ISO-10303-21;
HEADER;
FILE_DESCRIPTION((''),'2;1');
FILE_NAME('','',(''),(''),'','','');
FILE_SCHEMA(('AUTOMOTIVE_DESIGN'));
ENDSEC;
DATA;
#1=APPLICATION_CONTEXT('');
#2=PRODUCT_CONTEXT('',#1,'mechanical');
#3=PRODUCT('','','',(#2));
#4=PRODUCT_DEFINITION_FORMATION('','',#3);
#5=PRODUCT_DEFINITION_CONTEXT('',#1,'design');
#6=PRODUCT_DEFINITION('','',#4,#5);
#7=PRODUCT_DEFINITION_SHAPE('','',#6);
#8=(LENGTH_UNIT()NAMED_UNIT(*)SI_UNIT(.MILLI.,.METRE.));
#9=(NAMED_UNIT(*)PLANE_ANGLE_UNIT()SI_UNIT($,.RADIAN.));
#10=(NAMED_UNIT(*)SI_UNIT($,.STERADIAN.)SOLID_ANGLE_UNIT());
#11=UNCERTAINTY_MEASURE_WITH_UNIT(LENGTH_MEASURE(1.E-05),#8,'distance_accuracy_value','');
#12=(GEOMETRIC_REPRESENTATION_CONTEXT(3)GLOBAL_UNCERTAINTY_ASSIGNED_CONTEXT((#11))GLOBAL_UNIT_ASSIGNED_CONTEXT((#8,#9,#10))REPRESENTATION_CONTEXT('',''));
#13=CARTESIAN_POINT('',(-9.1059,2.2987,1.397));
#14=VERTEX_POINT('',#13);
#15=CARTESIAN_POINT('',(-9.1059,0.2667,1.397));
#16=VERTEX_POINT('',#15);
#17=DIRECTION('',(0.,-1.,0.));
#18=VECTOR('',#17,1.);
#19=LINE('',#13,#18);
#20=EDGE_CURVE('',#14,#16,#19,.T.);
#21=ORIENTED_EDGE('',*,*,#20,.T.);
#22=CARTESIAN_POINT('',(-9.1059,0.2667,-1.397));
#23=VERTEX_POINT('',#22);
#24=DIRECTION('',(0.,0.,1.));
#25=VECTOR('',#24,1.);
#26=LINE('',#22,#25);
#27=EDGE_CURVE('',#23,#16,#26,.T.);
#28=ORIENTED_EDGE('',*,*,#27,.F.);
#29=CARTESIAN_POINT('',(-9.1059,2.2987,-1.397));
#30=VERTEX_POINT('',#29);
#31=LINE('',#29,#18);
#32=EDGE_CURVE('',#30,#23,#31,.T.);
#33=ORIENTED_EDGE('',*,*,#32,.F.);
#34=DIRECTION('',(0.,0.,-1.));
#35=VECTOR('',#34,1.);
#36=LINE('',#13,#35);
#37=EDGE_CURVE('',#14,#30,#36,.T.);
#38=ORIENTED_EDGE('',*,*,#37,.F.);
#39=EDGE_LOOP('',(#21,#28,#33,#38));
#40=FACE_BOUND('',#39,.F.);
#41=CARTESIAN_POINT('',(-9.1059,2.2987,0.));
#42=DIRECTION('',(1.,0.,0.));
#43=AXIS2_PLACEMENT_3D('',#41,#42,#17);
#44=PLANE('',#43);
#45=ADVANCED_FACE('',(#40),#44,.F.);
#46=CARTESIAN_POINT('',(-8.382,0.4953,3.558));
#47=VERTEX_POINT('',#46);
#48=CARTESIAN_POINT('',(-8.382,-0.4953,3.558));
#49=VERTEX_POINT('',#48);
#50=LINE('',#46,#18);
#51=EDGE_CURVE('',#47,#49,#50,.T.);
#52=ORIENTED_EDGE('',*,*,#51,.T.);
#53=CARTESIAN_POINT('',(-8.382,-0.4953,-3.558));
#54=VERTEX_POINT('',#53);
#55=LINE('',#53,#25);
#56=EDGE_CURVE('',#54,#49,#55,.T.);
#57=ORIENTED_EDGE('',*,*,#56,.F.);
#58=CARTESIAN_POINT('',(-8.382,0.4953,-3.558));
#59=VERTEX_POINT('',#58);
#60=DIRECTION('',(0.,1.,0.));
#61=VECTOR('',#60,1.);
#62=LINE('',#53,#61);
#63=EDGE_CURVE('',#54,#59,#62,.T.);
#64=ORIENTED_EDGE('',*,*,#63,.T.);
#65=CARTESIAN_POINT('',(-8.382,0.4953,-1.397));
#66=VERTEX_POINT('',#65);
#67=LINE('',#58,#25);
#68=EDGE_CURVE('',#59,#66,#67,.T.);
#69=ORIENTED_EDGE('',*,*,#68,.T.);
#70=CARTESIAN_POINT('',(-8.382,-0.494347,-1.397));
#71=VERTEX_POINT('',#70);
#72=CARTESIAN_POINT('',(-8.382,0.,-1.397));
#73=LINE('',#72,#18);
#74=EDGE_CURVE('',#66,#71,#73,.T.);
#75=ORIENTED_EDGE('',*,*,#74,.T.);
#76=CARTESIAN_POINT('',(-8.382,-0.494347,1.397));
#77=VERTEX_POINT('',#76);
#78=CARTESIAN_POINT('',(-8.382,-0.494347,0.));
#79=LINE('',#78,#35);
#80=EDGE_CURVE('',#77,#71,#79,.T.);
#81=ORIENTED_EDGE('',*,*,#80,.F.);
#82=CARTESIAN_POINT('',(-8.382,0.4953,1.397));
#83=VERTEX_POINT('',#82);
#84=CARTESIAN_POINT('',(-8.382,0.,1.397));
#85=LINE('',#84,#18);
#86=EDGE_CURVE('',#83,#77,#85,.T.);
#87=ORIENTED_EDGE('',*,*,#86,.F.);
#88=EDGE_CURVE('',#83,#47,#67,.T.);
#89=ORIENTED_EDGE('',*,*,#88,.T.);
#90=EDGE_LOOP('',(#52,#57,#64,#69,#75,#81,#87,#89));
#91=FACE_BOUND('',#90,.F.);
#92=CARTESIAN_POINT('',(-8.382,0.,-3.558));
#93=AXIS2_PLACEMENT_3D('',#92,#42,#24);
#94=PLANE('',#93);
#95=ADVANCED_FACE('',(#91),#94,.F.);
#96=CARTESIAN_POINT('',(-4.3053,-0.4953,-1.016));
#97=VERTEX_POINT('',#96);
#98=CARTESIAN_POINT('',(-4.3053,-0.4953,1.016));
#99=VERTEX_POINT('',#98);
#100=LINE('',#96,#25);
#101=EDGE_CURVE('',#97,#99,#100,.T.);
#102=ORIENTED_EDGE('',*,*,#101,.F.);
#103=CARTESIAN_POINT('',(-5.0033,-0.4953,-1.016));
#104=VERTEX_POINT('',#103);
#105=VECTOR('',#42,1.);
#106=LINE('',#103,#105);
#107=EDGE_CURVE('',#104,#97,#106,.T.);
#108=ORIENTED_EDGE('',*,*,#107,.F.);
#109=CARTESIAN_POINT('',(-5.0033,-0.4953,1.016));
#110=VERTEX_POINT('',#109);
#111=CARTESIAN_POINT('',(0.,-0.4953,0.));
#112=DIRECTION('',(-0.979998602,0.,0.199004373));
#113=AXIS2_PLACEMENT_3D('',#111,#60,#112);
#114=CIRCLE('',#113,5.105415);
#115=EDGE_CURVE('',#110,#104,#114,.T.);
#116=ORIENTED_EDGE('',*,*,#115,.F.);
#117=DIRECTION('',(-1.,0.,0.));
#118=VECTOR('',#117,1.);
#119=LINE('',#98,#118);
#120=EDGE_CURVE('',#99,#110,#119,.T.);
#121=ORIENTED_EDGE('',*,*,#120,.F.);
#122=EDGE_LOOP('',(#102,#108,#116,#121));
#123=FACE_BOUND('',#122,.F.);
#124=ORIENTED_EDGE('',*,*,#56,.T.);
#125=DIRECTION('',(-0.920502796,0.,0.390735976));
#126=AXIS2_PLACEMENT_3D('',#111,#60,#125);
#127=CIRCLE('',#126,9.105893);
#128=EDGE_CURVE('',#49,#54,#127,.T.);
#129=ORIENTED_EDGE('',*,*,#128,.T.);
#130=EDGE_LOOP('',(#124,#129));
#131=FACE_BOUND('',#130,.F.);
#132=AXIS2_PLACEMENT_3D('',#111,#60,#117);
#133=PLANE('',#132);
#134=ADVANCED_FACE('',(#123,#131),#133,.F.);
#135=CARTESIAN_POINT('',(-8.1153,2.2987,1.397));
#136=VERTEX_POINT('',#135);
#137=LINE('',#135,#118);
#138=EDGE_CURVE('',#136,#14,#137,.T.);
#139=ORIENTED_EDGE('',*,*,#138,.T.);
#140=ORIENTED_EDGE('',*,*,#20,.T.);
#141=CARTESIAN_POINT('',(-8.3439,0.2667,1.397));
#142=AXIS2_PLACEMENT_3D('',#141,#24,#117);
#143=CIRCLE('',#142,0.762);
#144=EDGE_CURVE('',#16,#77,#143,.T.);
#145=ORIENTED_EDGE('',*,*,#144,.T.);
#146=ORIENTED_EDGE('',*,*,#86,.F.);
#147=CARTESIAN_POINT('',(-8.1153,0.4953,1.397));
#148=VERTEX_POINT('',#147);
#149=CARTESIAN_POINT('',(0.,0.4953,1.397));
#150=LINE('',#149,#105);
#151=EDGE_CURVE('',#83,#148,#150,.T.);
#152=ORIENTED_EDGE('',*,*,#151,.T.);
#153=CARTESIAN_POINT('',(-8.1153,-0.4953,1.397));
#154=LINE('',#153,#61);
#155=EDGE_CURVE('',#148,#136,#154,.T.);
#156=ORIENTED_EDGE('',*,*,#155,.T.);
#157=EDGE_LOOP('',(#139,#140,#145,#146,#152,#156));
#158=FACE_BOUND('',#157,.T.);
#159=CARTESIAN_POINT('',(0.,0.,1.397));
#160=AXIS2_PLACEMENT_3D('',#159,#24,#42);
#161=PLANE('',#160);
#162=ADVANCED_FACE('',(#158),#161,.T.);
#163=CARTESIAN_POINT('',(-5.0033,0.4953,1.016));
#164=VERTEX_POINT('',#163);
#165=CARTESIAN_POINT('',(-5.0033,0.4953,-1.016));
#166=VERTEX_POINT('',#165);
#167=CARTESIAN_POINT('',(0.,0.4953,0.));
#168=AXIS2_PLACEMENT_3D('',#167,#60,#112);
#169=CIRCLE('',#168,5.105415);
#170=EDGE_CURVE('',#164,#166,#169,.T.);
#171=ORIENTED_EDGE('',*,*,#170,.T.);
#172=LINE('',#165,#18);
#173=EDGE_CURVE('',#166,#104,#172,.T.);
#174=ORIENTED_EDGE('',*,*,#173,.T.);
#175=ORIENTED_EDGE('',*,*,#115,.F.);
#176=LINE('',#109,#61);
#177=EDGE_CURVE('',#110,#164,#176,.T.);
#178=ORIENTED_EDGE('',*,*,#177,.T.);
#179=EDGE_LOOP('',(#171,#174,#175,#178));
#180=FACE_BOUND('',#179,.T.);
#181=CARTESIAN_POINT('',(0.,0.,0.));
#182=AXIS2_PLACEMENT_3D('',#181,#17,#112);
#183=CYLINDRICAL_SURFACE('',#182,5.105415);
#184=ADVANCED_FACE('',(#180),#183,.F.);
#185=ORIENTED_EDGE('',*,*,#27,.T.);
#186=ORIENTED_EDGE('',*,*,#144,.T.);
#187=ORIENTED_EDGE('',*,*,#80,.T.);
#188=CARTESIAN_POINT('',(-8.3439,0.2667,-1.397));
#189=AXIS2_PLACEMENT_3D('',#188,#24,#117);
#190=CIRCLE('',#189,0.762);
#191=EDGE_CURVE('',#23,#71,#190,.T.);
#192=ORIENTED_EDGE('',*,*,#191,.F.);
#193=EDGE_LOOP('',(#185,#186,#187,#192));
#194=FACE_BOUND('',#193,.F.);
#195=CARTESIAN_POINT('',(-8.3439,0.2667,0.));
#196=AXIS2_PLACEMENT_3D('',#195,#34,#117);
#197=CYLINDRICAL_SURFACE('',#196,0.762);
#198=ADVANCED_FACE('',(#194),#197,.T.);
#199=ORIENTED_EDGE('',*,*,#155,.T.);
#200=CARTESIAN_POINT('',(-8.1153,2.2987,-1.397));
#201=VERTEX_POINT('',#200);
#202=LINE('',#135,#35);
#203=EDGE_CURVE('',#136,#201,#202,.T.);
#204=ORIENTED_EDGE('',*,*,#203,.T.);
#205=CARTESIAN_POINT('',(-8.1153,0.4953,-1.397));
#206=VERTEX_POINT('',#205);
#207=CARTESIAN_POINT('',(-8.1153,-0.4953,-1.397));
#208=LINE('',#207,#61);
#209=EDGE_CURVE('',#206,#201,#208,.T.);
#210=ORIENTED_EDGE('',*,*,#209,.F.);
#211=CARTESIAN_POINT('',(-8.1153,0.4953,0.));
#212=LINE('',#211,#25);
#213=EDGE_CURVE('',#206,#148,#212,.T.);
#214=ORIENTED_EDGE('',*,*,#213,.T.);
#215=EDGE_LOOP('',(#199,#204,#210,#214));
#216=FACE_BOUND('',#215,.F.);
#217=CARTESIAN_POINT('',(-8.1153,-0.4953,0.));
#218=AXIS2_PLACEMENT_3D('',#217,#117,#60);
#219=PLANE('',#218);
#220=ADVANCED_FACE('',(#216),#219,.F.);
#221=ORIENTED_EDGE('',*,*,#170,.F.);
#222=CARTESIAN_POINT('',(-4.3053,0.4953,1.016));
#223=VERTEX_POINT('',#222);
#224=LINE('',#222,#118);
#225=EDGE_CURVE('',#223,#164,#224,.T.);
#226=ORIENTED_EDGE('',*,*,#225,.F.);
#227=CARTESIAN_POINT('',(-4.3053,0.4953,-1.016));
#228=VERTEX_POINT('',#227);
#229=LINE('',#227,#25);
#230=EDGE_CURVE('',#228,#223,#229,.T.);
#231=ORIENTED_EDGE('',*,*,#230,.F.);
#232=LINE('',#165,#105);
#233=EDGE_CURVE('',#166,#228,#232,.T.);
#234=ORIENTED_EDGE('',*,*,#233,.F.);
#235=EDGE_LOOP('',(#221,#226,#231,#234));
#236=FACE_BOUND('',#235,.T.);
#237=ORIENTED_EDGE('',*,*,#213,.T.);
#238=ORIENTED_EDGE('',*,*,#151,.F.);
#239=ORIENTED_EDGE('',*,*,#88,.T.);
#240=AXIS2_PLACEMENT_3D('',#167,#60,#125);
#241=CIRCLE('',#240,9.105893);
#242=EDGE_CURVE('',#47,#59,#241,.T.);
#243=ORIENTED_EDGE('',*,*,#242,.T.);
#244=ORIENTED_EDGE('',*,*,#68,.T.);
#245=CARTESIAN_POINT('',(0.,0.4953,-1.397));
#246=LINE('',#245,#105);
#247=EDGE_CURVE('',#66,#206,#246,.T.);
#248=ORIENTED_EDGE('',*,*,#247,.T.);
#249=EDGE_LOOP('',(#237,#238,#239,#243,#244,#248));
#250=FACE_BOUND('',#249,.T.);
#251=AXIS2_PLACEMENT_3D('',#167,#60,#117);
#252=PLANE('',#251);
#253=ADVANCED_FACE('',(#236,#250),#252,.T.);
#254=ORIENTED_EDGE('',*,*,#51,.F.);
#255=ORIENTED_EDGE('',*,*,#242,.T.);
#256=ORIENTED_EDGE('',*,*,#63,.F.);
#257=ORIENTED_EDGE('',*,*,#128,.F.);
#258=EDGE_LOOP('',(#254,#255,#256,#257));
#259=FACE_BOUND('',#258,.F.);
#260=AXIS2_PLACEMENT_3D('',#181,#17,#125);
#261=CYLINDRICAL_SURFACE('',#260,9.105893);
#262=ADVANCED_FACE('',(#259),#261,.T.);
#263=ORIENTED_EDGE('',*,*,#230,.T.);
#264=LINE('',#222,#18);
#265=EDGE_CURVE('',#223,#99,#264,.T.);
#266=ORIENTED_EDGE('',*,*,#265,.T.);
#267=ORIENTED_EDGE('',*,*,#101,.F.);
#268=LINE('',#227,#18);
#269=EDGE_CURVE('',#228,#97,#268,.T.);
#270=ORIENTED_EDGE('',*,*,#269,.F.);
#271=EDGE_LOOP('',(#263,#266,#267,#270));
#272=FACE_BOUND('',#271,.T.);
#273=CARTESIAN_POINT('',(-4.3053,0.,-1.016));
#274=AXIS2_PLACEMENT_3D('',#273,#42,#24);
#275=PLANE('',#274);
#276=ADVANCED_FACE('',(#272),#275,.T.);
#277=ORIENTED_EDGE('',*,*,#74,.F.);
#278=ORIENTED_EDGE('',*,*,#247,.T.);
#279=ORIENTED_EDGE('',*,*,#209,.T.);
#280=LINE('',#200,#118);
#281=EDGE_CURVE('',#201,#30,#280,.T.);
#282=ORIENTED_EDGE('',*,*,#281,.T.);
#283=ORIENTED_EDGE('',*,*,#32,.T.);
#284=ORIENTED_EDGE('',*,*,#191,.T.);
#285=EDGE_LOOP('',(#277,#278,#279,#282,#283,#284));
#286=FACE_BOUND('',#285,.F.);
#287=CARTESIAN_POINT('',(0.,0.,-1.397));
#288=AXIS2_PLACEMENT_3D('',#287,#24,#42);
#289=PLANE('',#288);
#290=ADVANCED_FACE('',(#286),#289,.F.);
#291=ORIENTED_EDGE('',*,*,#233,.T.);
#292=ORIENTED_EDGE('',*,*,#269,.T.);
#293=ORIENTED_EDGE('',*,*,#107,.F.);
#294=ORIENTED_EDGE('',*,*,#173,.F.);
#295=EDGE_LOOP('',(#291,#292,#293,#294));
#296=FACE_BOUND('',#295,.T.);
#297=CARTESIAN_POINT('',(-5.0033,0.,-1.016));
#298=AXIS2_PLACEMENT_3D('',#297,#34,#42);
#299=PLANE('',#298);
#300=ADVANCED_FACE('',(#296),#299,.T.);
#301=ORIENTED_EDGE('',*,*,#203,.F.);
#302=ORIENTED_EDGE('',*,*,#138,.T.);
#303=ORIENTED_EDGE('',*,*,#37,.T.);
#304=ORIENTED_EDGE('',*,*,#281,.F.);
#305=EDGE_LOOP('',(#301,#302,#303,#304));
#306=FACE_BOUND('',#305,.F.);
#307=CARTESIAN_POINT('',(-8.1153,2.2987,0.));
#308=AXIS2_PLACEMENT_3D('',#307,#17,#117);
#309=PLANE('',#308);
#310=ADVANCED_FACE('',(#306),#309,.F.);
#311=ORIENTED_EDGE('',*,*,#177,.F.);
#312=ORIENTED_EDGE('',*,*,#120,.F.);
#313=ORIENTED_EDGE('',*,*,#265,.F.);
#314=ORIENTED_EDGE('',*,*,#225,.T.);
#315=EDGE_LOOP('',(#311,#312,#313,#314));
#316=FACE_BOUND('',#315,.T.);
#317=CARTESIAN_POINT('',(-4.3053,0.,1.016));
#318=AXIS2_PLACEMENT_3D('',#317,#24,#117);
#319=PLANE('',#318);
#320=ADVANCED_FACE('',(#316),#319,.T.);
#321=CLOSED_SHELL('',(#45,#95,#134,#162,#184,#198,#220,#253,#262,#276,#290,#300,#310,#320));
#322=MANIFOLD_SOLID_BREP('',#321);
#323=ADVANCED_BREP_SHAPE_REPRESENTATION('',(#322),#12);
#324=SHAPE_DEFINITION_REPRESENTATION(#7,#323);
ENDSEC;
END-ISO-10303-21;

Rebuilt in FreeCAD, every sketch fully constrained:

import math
import FreeCAD as App
import Part
import Sketcher

V = App.Vector
Q = App.Units.Quantity

doc = App.newDocument("Part")
body = doc.addObject("PartDesign::Body", "Body")

# Sketch on XZ plane
sketch1 = body.newObject("Sketcher::SketchObject", "Sketch")
sketch1.AttachmentSupport = (doc.getObject("XZ_Plane"), [""])
sketch1.MapMode = "FlatFace"
sketch1.addGeometry([
    Part.ArcOfCircle(Part.Circle(V(0, 0, 0), V(0, 0, 1), 9.1), math.radians(-157), math.radians(157)),  # 0
    Part.LineSegment(V(-8.4, -3.6, 0), V(-8.4, 3.6, 0)),  # 1
    Part.ArcOfCircle(Part.Circle(V(0, 0, 0), V(0, 0, 1), 5.1), math.radians(-169), math.radians(169)),  # 2
    Part.LineSegment(V(-5, 1, 0), V(-4.3, 1, 0)),  # 3
    Part.LineSegment(V(-4.3, 1, 0), V(-4.3, -1, 0)),  # 4
    Part.LineSegment(V(-4.3, -1, 0), V(-5, -1, 0)),  # 5
], False)
sketch1.addConstraint([
    Sketcher.Constraint("Coincident", 0, 1, 1, 1),
    Sketcher.Constraint("Coincident", 1, 2, 0, 2),
    Sketcher.Constraint("Coincident", 2, 2, 3, 1),
    Sketcher.Constraint("Coincident", 3, 2, 4, 1),
    Sketcher.Constraint("Coincident", 4, 2, 5, 1),
    Sketcher.Constraint("Coincident", 5, 2, 2, 1),
    Sketcher.Constraint("Vertical", 1),
    Sketcher.Constraint("Horizontal", 3),
    Sketcher.Constraint("Vertical", 4),
    Sketcher.Constraint("Horizontal", 5),
    Sketcher.Constraint("Coincident", 0, 3, -1, 1),
    Sketcher.Constraint("Coincident", 2, 3, -1, 1),
    Sketcher.Constraint("Vertical", 2, 2, 5, 2),
    Sketcher.Constraint("Radius", 2, Q("0.201 in")),
    Sketcher.Constraint("DistanceY", 4, 2, 4, 1, Q("0.08 in")),
    Sketcher.Constraint("Radius", 0, Q("0.3585 in")),
    Sketcher.Constraint("DistanceX", 0, 1, -1, 1, Q("0.33 in")),
    Sketcher.Constraint("DistanceX", 3, 1, 3, 2, Q("0.698 mm")),
])
pad1 = body.newObject("PartDesign::Pad", "Pad")
pad1.Profile = sketch1
pad1.Length = Q("0.039 in")
pad1.Midplane = True

# Sketch on XY plane
sketch2 = body.newObject("Sketcher::SketchObject", "Sketch001")
sketch2.AttachmentSupport = (doc.getObject("XY_Plane"), [""])
sketch2.MapMode = "FlatFace"
sketch2.addGeometry([
    Part.LineSegment(V(-9.11, 2.3, 0), V(-9.11, 0.27, 0)),  # 0
    Part.ArcOfCircle(Part.Circle(V(-8.34, 0.27, 0), V(0, 0, 1), 0.76), math.radians(180), math.radians(270)),  # 1
    Part.LineSegment(V(-8.34, -0.5, 0), V(-8.12, -0.5, 0)),  # 2
    Part.LineSegment(V(-8.12, -0.5, 0), V(-8.12, 2.3, 0)),  # 3
    Part.LineSegment(V(-8.12, 2.3, 0), V(-9.11, 2.3, 0)),  # 4
], False)
sketch2.addConstraint([
    Sketcher.Constraint("Tangent", 0, 2, 1, 1),
    Sketcher.Constraint("Tangent", 1, 2, 2, 1),
    Sketcher.Constraint("Coincident", 2, 2, 3, 1),
    Sketcher.Constraint("Coincident", 3, 2, 4, 1),
    Sketcher.Constraint("Coincident", 4, 2, 0, 1),
    Sketcher.Constraint("Vertical", 0),
    Sketcher.Constraint("Horizontal", 2),
    Sketcher.Constraint("Vertical", 3),
    Sketcher.Constraint("Horizontal", 4),
    Sketcher.Constraint("Radius", 1, Q("0.03 in")),
    Sketcher.Constraint("DistanceY", 0, 2, 0, 1, Q("0.08 in")),
    Sketcher.Constraint("DistanceX", 2, 1, 2, 2, Q("0.009 in")),
    Sketcher.Constraint("DistanceX", 1, 3, -1, 1, Q("0.3285 in")),
    Sketcher.Constraint("DistanceY", -1, 1, 1, 3, Q("0.0105 in")),
])
pad2 = body.newObject("PartDesign::Pad", "Pad001")
pad2.Profile = sketch2
pad2.Length = Q("0.11 in")
pad2.Midplane = True

doc.recompute()
